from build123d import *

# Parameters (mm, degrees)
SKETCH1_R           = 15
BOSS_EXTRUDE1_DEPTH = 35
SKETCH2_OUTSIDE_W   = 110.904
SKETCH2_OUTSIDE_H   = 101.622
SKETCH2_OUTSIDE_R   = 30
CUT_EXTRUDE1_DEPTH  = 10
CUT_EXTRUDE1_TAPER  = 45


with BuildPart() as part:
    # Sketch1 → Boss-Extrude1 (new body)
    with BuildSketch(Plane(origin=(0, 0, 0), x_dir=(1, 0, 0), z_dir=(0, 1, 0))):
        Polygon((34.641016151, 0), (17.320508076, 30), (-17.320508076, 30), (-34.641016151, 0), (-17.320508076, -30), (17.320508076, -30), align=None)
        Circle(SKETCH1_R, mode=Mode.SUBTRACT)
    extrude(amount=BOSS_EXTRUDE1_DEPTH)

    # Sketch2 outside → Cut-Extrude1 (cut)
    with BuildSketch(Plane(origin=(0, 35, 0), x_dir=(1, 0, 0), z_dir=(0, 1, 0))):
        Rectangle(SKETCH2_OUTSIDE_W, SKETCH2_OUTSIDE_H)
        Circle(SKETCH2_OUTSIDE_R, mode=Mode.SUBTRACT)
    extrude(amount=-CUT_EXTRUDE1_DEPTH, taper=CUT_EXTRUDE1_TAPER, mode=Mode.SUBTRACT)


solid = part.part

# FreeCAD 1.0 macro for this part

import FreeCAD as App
import Part
import Sketcher
Q = App.Units.Quantity


def add_polygon(sketch, points):
    """Adds a closed chain of lines whose ends are joined by coincident constraints."""
    first, n = sketch.GeometryCount, len(points)
    for a, b in zip(points, points[1:] + points[:1]):
        sketch.addGeometry(Part.LineSegment(App.Vector(*a, 0), App.Vector(*b, 0)), False)
    for i in range(n):
        sketch.addConstraint(Sketcher.Constraint("Coincident", first + i, 2, first + (i + 1) % n, 1))

doc = App.newDocument("Part")
body = doc.addObject("PartDesign::Body", "Body")

sketch1 = body.newObject("Sketcher::SketchObject", "Sketch")
sketch1.AttachmentSupport = (doc.getObject("XZ_Plane"), [""])
sketch1.MapMode = "FlatFace"
add_polygon(sketch1, [(34.641016, 0), (17.320508, -30), (-17.320508, -30), (-34.641016, 0), (-17.320508, 30), (17.320508, 30)])
sketch1.addGeometry(Part.Circle(App.Vector(0, 0, 0), App.Vector(0, 0, 1), 15), False)
sketch1.addConstraint(Sketcher.Constraint("Horizontal", 1))
sketch1.addConstraint(Sketcher.Constraint("Horizontal", 4))
sketch1.addConstraint(Sketcher.Constraint("Coincident", 6, 3, -1, 1))
sketch1.addConstraint(Sketcher.Constraint("Symmetric", 0, 2, 3, 2, -1, 1))
sketch1.addConstraint(Sketcher.Constraint("Symmetric", 2, 2, 5, 2, -1, 1))
sketch1.addConstraint(Sketcher.Constraint("PointOnObject", 2, 2, -1))
sketch1.addConstraint(Sketcher.Constraint("Parallel", 2, 5))
sketch1.addConstraint(Sketcher.Constraint("Vertical", 1, 2, 3, 2))
sketch1.addConstraint(Sketcher.Constraint("Diameter", 6, 30.0))
sketch1.addConstraint(Sketcher.Constraint("Angle", 0, Q("-120 deg")))
sketch1.addConstraint(Sketcher.Constraint("DistanceY", 0, 2, -1, 1, 30.0))
sketch1.addConstraint(Sketcher.Constraint("DistanceX", 1, 2, 1, 1, 34.641016))
pad1 = body.newObject("PartDesign::Pad", "Pad")
pad1.Profile = sketch1
pad1.Length = 35
pad1.Reversed = True

sketch2 = body.newObject("Sketcher::SketchObject", "Sketch001")
sketch2.AttachmentSupport = (doc.getObject("XZ_Plane"), [""])
sketch2.MapMode = "FlatFace"
sketch2.AttachmentOffset = App.Placement(App.Vector(0, 0, -35), App.Rotation())
add_polygon(sketch2, [(-55.452, -50.811), (-55.452, 50.811), (55.452, 50.811), (55.452, -50.811)])
sketch2.addGeometry(Part.Circle(App.Vector(0, 0, 0), App.Vector(0, 0, 1), 30), False)
sketch2.addConstraint(Sketcher.Constraint("Vertical", 0))
sketch2.addConstraint(Sketcher.Constraint("Horizontal", 1))
sketch2.addConstraint(Sketcher.Constraint("Vertical", 2))
sketch2.addConstraint(Sketcher.Constraint("Horizontal", 3))
sketch2.addConstraint(Sketcher.Constraint("Coincident", 4, 3, -1, 1))
sketch2.addConstraint(Sketcher.Constraint("Symmetric", 0, 2, 2, 2, -1, 1))
sketch2.addConstraint(Sketcher.Constraint("Diameter", 4, 60.0))
sketch2.addConstraint(Sketcher.Constraint("DistanceX", 1, 1, 1, 2, 110.904))
sketch2.addConstraint(Sketcher.Constraint("DistanceY", 0, 1, 0, 2, 101.622))
pocket1 = body.newObject("PartDesign::Pocket", "Pocket")
pocket1.Profile = sketch2
pocket1.Length = 10
pocket1.Reversed = True
pocket1.TaperAngle = 45

doc.recompute()
